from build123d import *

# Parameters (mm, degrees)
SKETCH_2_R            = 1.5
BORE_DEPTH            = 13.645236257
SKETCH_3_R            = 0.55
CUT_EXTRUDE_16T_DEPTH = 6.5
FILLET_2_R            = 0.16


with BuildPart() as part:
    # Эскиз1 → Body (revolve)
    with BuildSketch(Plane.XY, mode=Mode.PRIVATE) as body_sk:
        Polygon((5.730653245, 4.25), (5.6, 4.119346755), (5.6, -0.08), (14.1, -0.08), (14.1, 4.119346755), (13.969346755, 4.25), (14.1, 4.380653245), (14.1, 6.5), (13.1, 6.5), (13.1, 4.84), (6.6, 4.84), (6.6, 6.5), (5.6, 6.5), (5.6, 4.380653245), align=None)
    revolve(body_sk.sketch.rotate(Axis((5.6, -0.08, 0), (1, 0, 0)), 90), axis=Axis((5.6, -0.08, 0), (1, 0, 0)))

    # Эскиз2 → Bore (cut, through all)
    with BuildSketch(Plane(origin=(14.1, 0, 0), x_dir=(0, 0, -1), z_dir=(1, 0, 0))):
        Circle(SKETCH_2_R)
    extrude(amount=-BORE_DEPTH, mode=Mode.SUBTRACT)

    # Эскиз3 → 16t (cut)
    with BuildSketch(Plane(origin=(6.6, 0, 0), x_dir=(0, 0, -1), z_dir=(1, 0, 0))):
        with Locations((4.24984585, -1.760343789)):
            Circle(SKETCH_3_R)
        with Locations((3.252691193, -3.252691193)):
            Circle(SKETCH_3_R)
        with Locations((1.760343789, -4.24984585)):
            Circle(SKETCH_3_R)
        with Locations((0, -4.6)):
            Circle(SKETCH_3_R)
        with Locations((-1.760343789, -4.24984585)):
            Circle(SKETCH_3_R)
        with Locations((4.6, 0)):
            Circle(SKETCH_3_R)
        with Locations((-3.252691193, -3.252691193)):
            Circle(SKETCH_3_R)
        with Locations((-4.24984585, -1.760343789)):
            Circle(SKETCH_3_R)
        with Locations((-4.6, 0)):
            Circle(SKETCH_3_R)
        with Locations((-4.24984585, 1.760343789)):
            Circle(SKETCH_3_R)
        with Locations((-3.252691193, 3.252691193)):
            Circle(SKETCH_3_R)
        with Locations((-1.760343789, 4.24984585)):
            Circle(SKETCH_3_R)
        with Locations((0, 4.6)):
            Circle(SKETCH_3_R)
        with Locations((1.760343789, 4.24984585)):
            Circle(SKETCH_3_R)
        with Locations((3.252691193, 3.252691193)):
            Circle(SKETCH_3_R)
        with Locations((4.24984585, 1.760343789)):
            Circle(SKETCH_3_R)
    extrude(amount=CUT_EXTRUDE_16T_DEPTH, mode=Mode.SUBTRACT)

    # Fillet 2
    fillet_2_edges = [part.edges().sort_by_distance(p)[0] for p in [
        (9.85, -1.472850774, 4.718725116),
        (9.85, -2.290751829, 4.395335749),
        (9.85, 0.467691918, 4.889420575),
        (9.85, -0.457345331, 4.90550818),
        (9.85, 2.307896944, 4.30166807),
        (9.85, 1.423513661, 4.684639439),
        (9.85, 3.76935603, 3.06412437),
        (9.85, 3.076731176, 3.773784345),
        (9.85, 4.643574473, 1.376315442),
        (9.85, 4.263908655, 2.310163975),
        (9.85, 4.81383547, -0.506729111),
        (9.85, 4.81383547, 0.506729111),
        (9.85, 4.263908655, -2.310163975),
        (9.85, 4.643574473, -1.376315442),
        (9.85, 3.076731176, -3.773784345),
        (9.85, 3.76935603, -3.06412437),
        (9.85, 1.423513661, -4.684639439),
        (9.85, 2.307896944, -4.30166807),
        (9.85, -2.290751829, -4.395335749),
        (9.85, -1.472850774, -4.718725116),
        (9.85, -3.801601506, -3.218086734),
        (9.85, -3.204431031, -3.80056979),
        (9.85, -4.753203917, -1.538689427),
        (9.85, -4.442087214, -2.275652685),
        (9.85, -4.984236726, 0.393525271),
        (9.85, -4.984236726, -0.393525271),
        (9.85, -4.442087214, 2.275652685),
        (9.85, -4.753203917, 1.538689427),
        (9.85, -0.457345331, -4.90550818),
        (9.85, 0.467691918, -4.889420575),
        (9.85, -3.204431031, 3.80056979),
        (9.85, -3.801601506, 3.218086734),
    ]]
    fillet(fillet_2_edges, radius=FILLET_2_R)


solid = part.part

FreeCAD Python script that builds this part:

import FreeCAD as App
import Part
import Sketcher

V = App.Vector
Q = App.Units.Quantity


def edges_at(feature, points):
    """Names of the edges that pass closest to the given points."""
    edges = feature.Shape.Edges
    near = lambda p: min(range(len(edges)), key=lambda i: edges[i].distToShape(Part.Vertex(*p))[0])
    return sorted({f"Edge{near(p) + 1}" for p in points})

doc = App.newDocument("Part")
body = doc.addObject("PartDesign::Body", "Body")

# Sketch on XY plane
sketch1 = doc.addObject("Sketcher::SketchObject", "Sketch")
body.addObject(sketch1)
sketch1.AttachmentSupport = (doc.XY_Plane, [""])
sketch1.MapMode = "FlatFace"
sketch1.addGeometry(Part.LineSegment(V(5.73, 4.25, 0), V(5.6, 4.12, 0)), False)
sketch1.addGeometry(Part.LineSegment(V(5.6, 4.12, 0), V(5.6, -0.08, 0)), False)
sketch1.addGeometry(Part.LineSegment(V(5.6, -0.08, 0), V(14.1, -0.08, 0)), False)
sketch1.addGeometry(Part.LineSegment(V(14.1, -0.08, 0), V(14.1, 4.12, 0)), False)
sketch1.addGeometry(Part.LineSegment(V(14.1, 4.12, 0), V(13.97, 4.25, 0)), False)
sketch1.addGeometry(Part.LineSegment(V(13.97, 4.25, 0), V(14.1, 4.38, 0)), False)
sketch1.addGeometry(Part.LineSegment(V(14.1, 4.38, 0), V(14.1, 6.5, 0)), False)
sketch1.addGeometry(Part.LineSegment(V(14.1, 6.5, 0), V(13.1, 6.5, 0)), False)
sketch1.addGeometry(Part.LineSegment(V(13.1, 6.5, 0), V(13.1, 4.84, 0)), False)
sketch1.addGeometry(Part.LineSegment(V(13.1, 4.84, 0), V(6.6, 4.84, 0)), False)
sketch1.addGeometry(Part.LineSegment(V(6.6, 4.84, 0), V(6.6, 6.5, 0)), False)
sketch1.addGeometry(Part.LineSegment(V(6.6, 6.5, 0), V(5.6, 6.5, 0)), False)
sketch1.addGeometry(Part.LineSegment(V(5.6, 6.5, 0), V(5.6, 4.38, 0)), False)
sketch1.addGeometry(Part.LineSegment(V(5.6, 4.38, 0), V(5.73, 4.25, 0)), False)
sketch1.addGeometry(Part.LineSegment(V(5.6, -0.08, 0), V(14.1, -0.08, 0)), True)  # axis
sketch1.addConstraint(Sketcher.Constraint("Coincident", 0, 2, 1, 1))
sketch1.addConstraint(Sketcher.Constraint("Coincident", 1, 2, 2, 1))
sketch1.addConstraint(Sketcher.Constraint("Coincident", 2, 2, 3, 1))
sketch1.addConstraint(Sketcher.Constraint("Coincident", 3, 2, 4, 1))
sketch1.addConstraint(Sketcher.Constraint("Coincident", 4, 2, 5, 1))
sketch1.addConstraint(Sketcher.Constraint("Coincident", 5, 2, 6, 1))
sketch1.addConstraint(Sketcher.Constraint("Coincident", 6, 2, 7, 1))
sketch1.addConstraint(Sketcher.Constraint("Coincident", 7, 2, 8, 1))
sketch1.addConstraint(Sketcher.Constraint("Coincident", 8, 2, 9, 1))
sketch1.addConstraint(Sketcher.Constraint("Coincident", 9, 2, 10, 1))
sketch1.addConstraint(Sketcher.Constraint("Coincident", 10, 2, 11, 1))
sketch1.addConstraint(Sketcher.Constraint("Coincident", 11, 2, 12, 1))
sketch1.addConstraint(Sketcher.Constraint("Coincident", 12, 2, 13, 1))
sketch1.addConstraint(Sketcher.Constraint("Coincident", 13, 2, 0, 1))
sketch1.addConstraint(Sketcher.Constraint("Vertical", 1))
sketch1.addConstraint(Sketcher.Constraint("Horizontal", 2))
sketch1.addConstraint(Sketcher.Constraint("Vertical", 3))
sketch1.addConstraint(Sketcher.Constraint("Vertical", 6))
sketch1.addConstraint(Sketcher.Constraint("Horizontal", 7))
sketch1.addConstraint(Sketcher.Constraint("Vertical", 8))
sketch1.addConstraint(Sketcher.Constraint("Horizontal", 9))
sketch1.addConstraint(Sketcher.Constraint("Vertical", 10))
sketch1.addConstraint(Sketcher.Constraint("Horizontal", 11))
sketch1.addConstraint(Sketcher.Constraint("Vertical", 12))
sketch1.addConstraint(Sketcher.Constraint("Horizontal", 14))
sketch1.addConstraint(Sketcher.Constraint("Coincident", 14, 1, 1, 2))
sketch1.addConstraint(Sketcher.Constraint("Perpendicular", 0, 4))
sketch1.addConstraint(Sketcher.Constraint("Perpendicular", 4, 5))
sketch1.addConstraint(Sketcher.Constraint("Perpendicular", 5, 13))
sketch1.addConstraint(Sketcher.Constraint("Horizontal", 0, 2, 3, 2))
sketch1.addConstraint(Sketcher.Constraint("Horizontal", 7, 2, 10, 2))
sketch1.addConstraint(Sketcher.Constraint("Horizontal", 5, 2, 12, 2))
sketch1.addConstraint(Sketcher.Constraint("Horizontal", 4, 2, 13, 2))
sketch1.addConstraint(Sketcher.Constraint("Vertical", 3, 2, 5, 2))
sketch1.addConstraint(Sketcher.Constraint("Vertical", 1, 2, 11, 2))
sketch1.addConstraint(Sketcher.Constraint("Vertical", 6, 2, 14, 2))
sketch1.addConstraint(Sketcher.Constraint("Equal", 7, 11))
sketch1.addConstraint(Sketcher.Constraint("DistanceX", 7, 2, 7, 1, Q("1 mm")))
sketch1.addConstraint(Sketcher.Constraint("DistanceX", 2, 1, 2, 2, Q("8.5 mm")))
sketch1.addConstraint(Sketcher.Constraint("DistanceY", 8, 2, 8, 1, Q("1.66 mm")))
sketch1.addConstraint(Sketcher.Constraint("DistanceX", -1, 1, 0, 2, Q("5.6 mm")))
sketch1.addConstraint(Sketcher.Constraint("DistanceY", -1, 1, 6, 2, Q("6.5 mm")))
sketch1.addConstraint(Sketcher.Constraint("DistanceY", 1, 2, -1, 1, Q("0.08 mm")))
sketch1.addConstraint(Sketcher.Constraint("DistanceY", -1, 1, 4, 2, Q("4.25 mm")))
sketch1.addConstraint(Sketcher.Constraint("Distance", 0, Q("0.184772 mm")))
revolution = doc.addObject("PartDesign::Revolution", "Revolution")
body.addObject(revolution)
revolution.Profile = sketch1
revolution.ReferenceAxis = (sketch1, ["Axis0"])
revolution.Angle = 360

# Sketch on YZ plane
sketch2 = doc.addObject("Sketcher::SketchObject", "Sketch001")
body.addObject(sketch2)
sketch2.AttachmentSupport = (doc.YZ_Plane, [""])
sketch2.MapMode = "FlatFace"
sketch2.AttachmentOffset = App.Placement(V(0, 0, 14.1), App.Rotation())
sketch2.addGeometry(Part.Circle(V(0, 0, 0), V(0, 0, 1), 1.5), False)
sketch2.addConstraint(Sketcher.Constraint("Coincident", 0, 3, -1, 1))
sketch2.addConstraint(Sketcher.Constraint("Diameter", 0, Q("3 mm")))
pocket1 = doc.addObject("PartDesign::Pocket", "Pocket")
body.addObject(pocket1)
pocket1.Profile = sketch2
pocket1.Type = "ThroughAll"

# Sketch on YZ plane
sketch3 = doc.addObject("Sketcher::SketchObject", "Sketch002")
body.addObject(sketch3)
sketch3.AttachmentSupport = (doc.YZ_Plane, [""])
sketch3.MapMode = "FlatFace"
sketch3.AttachmentOffset = App.Placement(V(0, 0, 6.6), App.Rotation())
sketch3.addGeometry(Part.Circle(V(-1.8, -4.2, 0), V(0, 0, 1), 0.6), False)
sketch3.addGeometry(Part.Circle(V(-3.3, -3.3, 0), V(0, 0, 1), 0.6), False)
sketch3.addGeometry(Part.Circle(V(-4.2, -1.8, 0), V(0, 0, 1), 0.6), False)
sketch3.addGeometry(Part.Circle(V(-4.6, 0, 0), V(0, 0, 1), 0.6), False)
sketch3.addGeometry(Part.Circle(V(-4.2, 1.8, 0), V(0, 0, 1), 0.6), False)
sketch3.addGeometry(Part.Circle(V(0, -4.6, 0), V(0, 0, 1), 0.6), False)
sketch3.addGeometry(Part.Circle(V(-3.3, 3.3, 0), V(0, 0, 1), 0.6), False)
sketch3.addGeometry(Part.Circle(V(-1.8, 4.2, 0), V(0, 0, 1), 0.6), False)
sketch3.addGeometry(Part.Circle(V(0, 4.6, 0), V(0, 0, 1), 0.6), False)
sketch3.addGeometry(Part.Circle(V(1.8, 4.2, 0), V(0, 0, 1), 0.6), False)
sketch3.addGeometry(Part.Circle(V(3.3, 3.3, 0), V(0, 0, 1), 0.6), False)
sketch3.addGeometry(Part.Circle(V(4.2, 1.8, 0), V(0, 0, 1), 0.6), False)
sketch3.addGeometry(Part.Circle(V(4.6, 0, 0), V(0, 0, 1), 0.6), False)
sketch3.addGeometry(Part.Circle(V(4.2, -1.8, 0), V(0, 0, 1), 0.6), False)
sketch3.addGeometry(Part.Circle(V(3.3, -3.3, 0), V(0, 0, 1), 0.6), False)
sketch3.addGeometry(Part.Circle(V(1.8, -4.2, 0), V(0, 0, 1), 0.6), False)
sketch3.addConstraint(Sketcher.Constraint("Equal", 0, 1))
sketch3.addConstraint(Sketcher.Constraint("Equal", 1, 2))
sketch3.addConstraint(Sketcher.Constraint("Equal", 2, 3))
sketch3.addConstraint(Sketcher.Constraint("Equal", 3, 4))
sketch3.addConstraint(Sketcher.Constraint("Equal", 4, 5))
sketch3.addConstraint(Sketcher.Constraint("Equal", 5, 6))
sketch3.addConstraint(Sketcher.Constraint("Equal", 6, 7))
sketch3.addConstraint(Sketcher.Constraint("Equal", 7, 8))
sketch3.addConstraint(Sketcher.Constraint("Equal", 8, 9))
sketch3.addConstraint(Sketcher.Constraint("Equal", 9, 10))
sketch3.addConstraint(Sketcher.Constraint("Equal", 10, 11))
sketch3.addConstraint(Sketcher.Constraint("Equal", 11, 12))
sketch3.addConstraint(Sketcher.Constraint("Equal", 12, 13))
sketch3.addConstraint(Sketcher.Constraint("Equal", 13, 14))
sketch3.addConstraint(Sketcher.Constraint("Equal", 14, 15))
sketch3.addConstraint(Sketcher.Constraint("Symmetric", 5, 3, 8, 3, -1, 1))
sketch3.addConstraint(Sketcher.Constraint("Symmetric", 0, 3, 9, 3, -1, 1))
sketch3.addConstraint(Sketcher.Constraint("Symmetric", 1, 3, 10, 3, -1, 1))
sketch3.addConstraint(Sketcher.Constraint("Symmetric", 2, 3, 11, 3, -1, 1))
sketch3.addConstraint(Sketcher.Constraint("Symmetric", 3, 3, 12, 3, -1, 1))
sketch3.addConstraint(Sketcher.Constraint("Symmetric", 4, 3, 13, 3, -1, 1))
sketch3.addConstraint(Sketcher.Constraint("Symmetric", 6, 3, 14, 3, -1, 1))
sketch3.addConstraint(Sketcher.Constraint("Symmetric", 7, 3, 15, 3, -1, 1))
sketch3.addConstraint(Sketcher.Constraint("Symmetric", 7, 3, 9, 3, -2))
sketch3.addConstraint(Sketcher.Constraint("Symmetric", 6, 3, 10, 3, -2))
sketch3.addConstraint(Sketcher.Constraint("Symmetric", 4, 3, 11, 3, -2))
sketch3.addConstraint(Sketcher.Constraint("PointOnObject", 3, 3, -1))
sketch3.addConstraint(Sketcher.Constraint("PointOnObject", 5, 3, -2))
sketch3.addConstraint(Sketcher.Constraint("Diameter", 0, Q("1.1 mm")))
sketch3.addConstraint(Sketcher.Constraint("DistanceX", 3, 3, -1, 1, Q("4.6 mm")))
sketch3.addConstraint(Sketcher.Constraint("DistanceY", 5, 3, -1, 1, Q("4.6 mm")))
sketch3.addConstraint(Sketcher.Constraint("DistanceX", 1, 3, -1, 1, Q("3.252691 mm")))
sketch3.addConstraint(Sketcher.Constraint("DistanceY", 1, 3, -1, 1, Q("3.252691 mm")))
sketch3.addConstraint(Sketcher.Constraint("DistanceY", 0, 3, 4, 3, Q("6.01019 mm")))
sketch3.addConstraint(Sketcher.Constraint("DistanceX", 4, 3, 9, 3, Q("6.01019 mm")))
sketch3.addConstraint(Sketcher.Constraint("DistanceX", 0, 3, -1, 1, Q("1.760344 mm")))
sketch3.addConstraint(Sketcher.Constraint("DistanceY", 0, 3, -1, 1, Q("4.249846 mm")))
pocket2 = doc.addObject("PartDesign::Pocket", "Pocket001")
body.addObject(pocket2)
pocket2.Profile = sketch3
pocket2.Length = 6.5
pocket2.Reversed = True
doc.recompute()

fillet = doc.addObject("PartDesign::Fillet", "Fillet")
body.addObject(fillet)
fillet.Base = (pocket2, edges_at(pocket2, [
    (9.85, -1.473, 4.719),
    (9.85, -2.291, 4.395),
    (9.85, 0.468, 4.889),
    (9.85, -0.457, 4.906),
    (9.85, 2.308, 4.302),
    (9.85, 1.424, 4.685),
    (9.85, 3.769, 3.064),
    (9.85, 3.077, 3.774),
    (9.85, 4.644, 1.376),
    (9.85, 4.264, 2.31),
    (9.85, 4.814, -0.507),
    (9.85, 4.814, 0.507),
    (9.85, 4.264, -2.31),
    (9.85, 4.644, -1.376),
    (9.85, 3.077, -3.774),
    (9.85, 3.769, -3.064),
    (9.85, 1.424, -4.685),
    (9.85, 2.308, -4.302),
    (9.85, -2.291, -4.395),
    (9.85, -1.473, -4.719),
    (9.85, -3.802, -3.218),
    (9.85, -3.204, -3.801),
    (9.85, -4.753, -1.539),
    (9.85, -4.442, -2.276),
    (9.85, -4.984, 0.394),
    (9.85, -4.984, -0.394),
    (9.85, -4.442, 2.276),
    (9.85, -4.753, 1.539),
    (9.85, -0.457, -4.906),
    (9.85, 0.468, -4.889),
    (9.85, -3.204, 3.801),
    (9.85, -3.802, 3.218),
]))
fillet.Radius = 0.16

doc.recompute()
